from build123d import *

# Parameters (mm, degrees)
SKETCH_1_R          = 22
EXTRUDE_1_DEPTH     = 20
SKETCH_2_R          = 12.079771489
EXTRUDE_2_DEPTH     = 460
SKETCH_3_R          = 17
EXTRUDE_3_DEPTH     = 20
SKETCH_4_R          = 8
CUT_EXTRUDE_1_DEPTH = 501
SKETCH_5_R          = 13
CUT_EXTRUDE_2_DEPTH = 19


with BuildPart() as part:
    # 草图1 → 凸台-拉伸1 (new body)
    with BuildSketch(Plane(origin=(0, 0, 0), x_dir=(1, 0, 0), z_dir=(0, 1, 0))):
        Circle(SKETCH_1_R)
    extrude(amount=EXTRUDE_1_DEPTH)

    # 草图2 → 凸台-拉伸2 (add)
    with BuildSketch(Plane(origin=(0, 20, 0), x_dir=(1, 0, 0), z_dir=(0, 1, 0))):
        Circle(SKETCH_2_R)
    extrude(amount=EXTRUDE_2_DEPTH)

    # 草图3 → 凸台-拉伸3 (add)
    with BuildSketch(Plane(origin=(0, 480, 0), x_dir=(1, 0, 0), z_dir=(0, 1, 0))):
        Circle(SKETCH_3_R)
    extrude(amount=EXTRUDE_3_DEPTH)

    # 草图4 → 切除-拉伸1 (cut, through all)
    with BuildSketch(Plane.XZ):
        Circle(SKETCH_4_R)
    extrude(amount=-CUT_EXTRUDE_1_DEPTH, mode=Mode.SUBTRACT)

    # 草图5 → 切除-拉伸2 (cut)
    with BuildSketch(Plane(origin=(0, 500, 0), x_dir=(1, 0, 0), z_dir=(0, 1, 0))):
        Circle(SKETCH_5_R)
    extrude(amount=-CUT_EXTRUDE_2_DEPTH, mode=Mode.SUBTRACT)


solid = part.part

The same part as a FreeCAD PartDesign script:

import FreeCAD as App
import Part
import Sketcher

V = App.Vector

doc = App.newDocument("Part")
body = doc.addObject("PartDesign::Body", "Body")

# Sketch on XZ plane
sketch1 = doc.addObject("Sketcher::SketchObject", "Sketch")
body.addObject(sketch1)
sketch1.AttachmentSupport = (doc.XZ_Plane, [""])
sketch1.MapMode = "FlatFace"
sketch1.addGeometry(Part.Circle(V(0, 0, 0), V(0, 0, 1), 22), False)
sketch1.addConstraint([
    Sketcher.Constraint("Coincident", 0, 3, -1, 1),
    Sketcher.Constraint("Diameter", 0, 44.0),
])
pad1 = doc.addObject("PartDesign::Pad", "Pad")
body.addObject(pad1)
pad1.Profile = sketch1
pad1.Length = 20
pad1.Reversed = True

# Sketch on XZ plane
sketch2 = doc.addObject("Sketcher::SketchObject", "Sketch001")
body.addObject(sketch2)
sketch2.AttachmentSupport = (doc.XZ_Plane, [""])
sketch2.MapMode = "FlatFace"
sketch2.AttachmentOffset = App.Placement(V(0, 0, -20), App.Rotation())
sketch2.addGeometry(Part.Circle(V(0, 0, 0), V(0, 0, 1), 12), False)
sketch2.addConstraint([
    Sketcher.Constraint("Coincident", 0, 3, -1, 1),
    Sketcher.Constraint("Diameter", 0, 24.159543),
])
pad2 = doc.addObject("PartDesign::Pad", "Pad001")
body.addObject(pad2)
pad2.Profile = sketch2
pad2.Length = 460
pad2.Reversed = True

# Sketch on XZ plane
sketch3 = doc.addObject("Sketcher::SketchObject", "Sketch002")
body.addObject(sketch3)
sketch3.AttachmentSupport = (doc.XZ_Plane, [""])
sketch3.MapMode = "FlatFace"
sketch3.AttachmentOffset = App.Placement(V(0, 0, -480), App.Rotation())
sketch3.addGeometry(Part.Circle(V(0, 0, 0), V(0, 0, 1), 17), False)
sketch3.addConstraint([
    Sketcher.Constraint("Coincident", 0, 3, -1, 1),
    Sketcher.Constraint("Diameter", 0, 34.0),
])
pad3 = doc.addObject("PartDesign::Pad", "Pad002")
body.addObject(pad3)
pad3.Profile = sketch3
pad3.Length = 20
pad3.Reversed = True

# Sketch on XZ plane
sketch4 = doc.addObject("Sketcher::SketchObject", "Sketch003")
body.addObject(sketch4)
sketch4.AttachmentSupport = (doc.XZ_Plane, [""])
sketch4.MapMode = "FlatFace"
sketch4.addGeometry(Part.Circle(V(0, 0, 0), V(0, 0, 1), 8), False)
sketch4.addConstraint([
    Sketcher.Constraint("Coincident", 0, 3, -1, 1),
    Sketcher.Constraint("Diameter", 0, 16.0),
])
pocket1 = doc.addObject("PartDesign::Pocket", "Pocket")
body.addObject(pocket1)
pocket1.Profile = sketch4
pocket1.Type = "ThroughAll"

# Sketch on XZ plane
sketch5 = doc.addObject("Sketcher::SketchObject", "Sketch004")
body.addObject(sketch5)
sketch5.AttachmentSupport = (doc.XZ_Plane, [""])
sketch5.MapMode = "FlatFace"
sketch5.AttachmentOffset = App.Placement(V(0, 0, -500), App.Rotation())
sketch5.addGeometry(Part.Circle(V(0, 0, 0), V(0, 0, 1), 13), False)
sketch5.addConstraint([
    Sketcher.Constraint("Coincident", 0, 3, -1, 1),
    Sketcher.Constraint("Diameter", 0, 26.0),
])
pocket2 = doc.addObject("PartDesign::Pocket", "Pocket001")
body.addObject(pocket2)
pocket2.Profile = sketch5
pocket2.Length = 19
pocket2.Reversed = True

doc.recompute()
